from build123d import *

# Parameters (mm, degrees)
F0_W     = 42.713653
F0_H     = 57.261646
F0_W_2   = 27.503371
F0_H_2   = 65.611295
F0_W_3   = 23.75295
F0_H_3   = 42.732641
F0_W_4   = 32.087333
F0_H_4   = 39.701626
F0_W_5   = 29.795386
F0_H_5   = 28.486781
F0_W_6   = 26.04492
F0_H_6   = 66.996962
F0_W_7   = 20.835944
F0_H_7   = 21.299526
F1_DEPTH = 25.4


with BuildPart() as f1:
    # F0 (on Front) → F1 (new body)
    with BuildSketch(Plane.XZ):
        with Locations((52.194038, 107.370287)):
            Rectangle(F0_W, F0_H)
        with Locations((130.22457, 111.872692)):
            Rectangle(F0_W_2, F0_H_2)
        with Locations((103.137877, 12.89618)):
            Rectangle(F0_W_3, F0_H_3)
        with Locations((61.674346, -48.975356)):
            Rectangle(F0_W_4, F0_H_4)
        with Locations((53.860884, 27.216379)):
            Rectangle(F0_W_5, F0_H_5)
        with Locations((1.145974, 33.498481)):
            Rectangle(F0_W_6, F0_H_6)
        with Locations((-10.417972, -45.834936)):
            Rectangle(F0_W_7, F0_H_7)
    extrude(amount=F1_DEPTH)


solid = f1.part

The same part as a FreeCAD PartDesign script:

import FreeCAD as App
import Part
import Sketcher
Q = App.Units.Quantity

doc = App.newDocument("Part")
body = doc.addObject("PartDesign::Body", "Body")
body.AllowCompound = True

# Sketch on XZ plane
sketch1 = doc.addObject("Sketcher::SketchObject", "Sketch")
body.addObject(sketch1)
sketch1.AttachmentSupport = (doc.XZ_Plane, [""])
sketch1.MapMode = "FlatFace"
sketch1.addGeometry([
    Part.LineSegment(App.Vector(30.837211, 136.00111, 0), App.Vector(30.837211, 78.739464, 0)),  # 0
    Part.LineSegment(App.Vector(30.837211, 78.739464, 0), App.Vector(73.550865, 78.739464, 0)),  # 1
    Part.LineSegment(App.Vector(73.550865, 78.739464, 0), App.Vector(73.550865, 136.00111, 0)),  # 2
    Part.LineSegment(App.Vector(73.550865, 136.00111, 0), App.Vector(30.837211, 136.00111, 0)),  # 3
    Part.LineSegment(App.Vector(116.472885, 144.678339, 0), App.Vector(116.472885, 79.067044, 0)),  # 4
    Part.LineSegment(App.Vector(116.472885, 79.067044, 0), App.Vector(143.976256, 79.067044, 0)),  # 5
    Part.LineSegment(App.Vector(143.976256, 79.067044, 0), App.Vector(143.976256, 144.678339, 0)),  # 6
    Part.LineSegment(App.Vector(143.976256, 144.678339, 0), App.Vector(116.472885, 144.678339, 0)),  # 7
    Part.LineSegment(App.Vector(91.261402, 34.262501, 0), App.Vector(91.261402, -8.47014, 0)),  # 8
    Part.LineSegment(App.Vector(91.261402, -8.47014, 0), App.Vector(115.014352, -8.47014, 0)),  # 9
    Part.LineSegment(App.Vector(115.014352, -8.47014, 0), App.Vector(115.014352, 34.262501, 0)),  # 10
    Part.LineSegment(App.Vector(115.014352, 34.262501, 0), App.Vector(91.261402, 34.262501, 0)),  # 11
    Part.LineSegment(App.Vector(45.630679, -29.124543, 0), App.Vector(45.630679, -68.826169, 0)),  # 12
    Part.LineSegment(App.Vector(45.630679, -68.826169, 0), App.Vector(77.718013, -68.826169, 0)),  # 13
    Part.LineSegment(App.Vector(77.718013, -68.826169, 0), App.Vector(77.718013, -29.124543, 0)),  # 14
    Part.LineSegment(App.Vector(77.718013, -29.124543, 0), App.Vector(45.630679, -29.124543, 0)),  # 15
    Part.LineSegment(App.Vector(38.963191, 41.45977, 0), App.Vector(38.963191, 12.972988, 0)),  # 16
    Part.LineSegment(App.Vector(38.963191, 12.972988, 0), App.Vector(68.758577, 12.972988, 0)),  # 17
    Part.LineSegment(App.Vector(68.758577, 12.972988, 0), App.Vector(68.758577, 41.45977, 0)),  # 18
    Part.LineSegment(App.Vector(68.758577, 41.45977, 0), App.Vector(38.963191, 41.45977, 0)),  # 19
    Part.LineSegment(App.Vector(-11.876486, 66.996962, 0), App.Vector(-11.876486, 0, 0)),  # 20
    Part.LineSegment(App.Vector(-11.876486, 0, 0), App.Vector(14.168434, 0, 0)),  # 21
    Part.LineSegment(App.Vector(14.168434, 0, 0), App.Vector(14.168434, 66.996962, 0)),  # 22
    Part.LineSegment(App.Vector(14.168434, 66.996962, 0), App.Vector(-11.876486, 66.996962, 0)),  # 23
    Part.LineSegment(App.Vector(-20.835944, -35.185173, 0), App.Vector(-20.835944, -56.484699, 0)),  # 24
    Part.LineSegment(App.Vector(-20.835944, -56.484699, 0), App.Vector(0, -56.484699, 0)),  # 25
    Part.LineSegment(App.Vector(0, -56.484699, 0), App.Vector(0, -35.185173, 0)),  # 26
    Part.LineSegment(App.Vector(0, -35.185173, 0), App.Vector(-20.835944, -35.185173, 0)),  # 27
], False)
sketch1.addConstraint([
    Sketcher.Constraint("Coincident", 0, 2, 1, 1),
    Sketcher.Constraint("Coincident", 1, 2, 2, 1),
    Sketcher.Constraint("Coincident", 2, 2, 3, 1),
    Sketcher.Constraint("Coincident", 3, 2, 0, 1),
    Sketcher.Constraint("Coincident", 4, 2, 5, 1),
    Sketcher.Constraint("Coincident", 5, 2, 6, 1),
    Sketcher.Constraint("Coincident", 6, 2, 7, 1),
    Sketcher.Constraint("Coincident", 7, 2, 4, 1),
    Sketcher.Constraint("Coincident", 8, 2, 9, 1),
    Sketcher.Constraint("Coincident", 9, 2, 10, 1),
    Sketcher.Constraint("Coincident", 10, 2, 11, 1),
    Sketcher.Constraint("Coincident", 11, 2, 8, 1),
    Sketcher.Constraint("Coincident", 12, 2, 13, 1),
    Sketcher.Constraint("Coincident", 13, 2, 14, 1),
    Sketcher.Constraint("Coincident", 14, 2, 15, 1),
    Sketcher.Constraint("Coincident", 15, 2, 12, 1),
    Sketcher.Constraint("Coincident", 16, 2, 17, 1),
    Sketcher.Constraint("Coincident", 17, 2, 18, 1),
    Sketcher.Constraint("Coincident", 18, 2, 19, 1),
    Sketcher.Constraint("Coincident", 19, 2, 16, 1),
    Sketcher.Constraint("Coincident", 20, 2, 21, 1),
    Sketcher.Constraint("Coincident", 21, 2, 22, 1),
    Sketcher.Constraint("Coincident", 22, 2, 23, 1),
    Sketcher.Constraint("Coincident", 23, 2, 20, 1),
    Sketcher.Constraint("Coincident", 24, 2, 25, 1),
    Sketcher.Constraint("Coincident", 25, 2, 26, 1),
    Sketcher.Constraint("Coincident", 26, 2, 27, 1),
    Sketcher.Constraint("Coincident", 27, 2, 24, 1),
    Sketcher.Constraint("Vertical", 0),
    Sketcher.Constraint("Horizontal", 1),
    Sketcher.Constraint("Vertical", 2),
    Sketcher.Constraint("Horizontal", 3),
    Sketcher.Constraint("Vertical", 4),
    Sketcher.Constraint("Horizontal", 5),
    Sketcher.Constraint("Vertical", 6),
    Sketcher.Constraint("Horizontal", 7),
    Sketcher.Constraint("Vertical", 8),
    Sketcher.Constraint("Horizontal", 9),
    Sketcher.Constraint("Vertical", 10),
    Sketcher.Constraint("Horizontal", 11),
    Sketcher.Constraint("Vertical", 12),
    Sketcher.Constraint("Horizontal", 13),
    Sketcher.Constraint("Vertical", 14),
    Sketcher.Constraint("Horizontal", 15),
    Sketcher.Constraint("Vertical", 16),
    Sketcher.Constraint("Horizontal", 17),
    Sketcher.Constraint("Vertical", 18),
    Sketcher.Constraint("Horizontal", 19),
    Sketcher.Constraint("Vertical", 20),
    Sketcher.Constraint("Horizontal", 21),
    Sketcher.Constraint("Vertical", 22),
    Sketcher.Constraint("Horizontal", 23),
    Sketcher.Constraint("Vertical", 24),
    Sketcher.Constraint("Horizontal", 25),
    Sketcher.Constraint("Vertical", 26),
    Sketcher.Constraint("Horizontal", 27),
    Sketcher.Constraint("PointOnObject", 20, 2, -1),
    Sketcher.Constraint("PointOnObject", 25, 2, -2),
    Sketcher.Constraint("DistanceX", 5, 1, 5, 2, Q("27.503371 mm")),
    Sketcher.Constraint("DistanceX", 9, 1, 9, 2, Q("23.75295 mm")),
    Sketcher.Constraint("DistanceX", 21, 1, 21, 2, Q("26.04492 mm")),
    Sketcher.Constraint("DistanceY", 8, 2, 8, 1, Q("42.732641 mm")),
    Sketcher.Constraint("DistanceY", 16, 2, 16, 1, Q("28.486781 mm")),
    Sketcher.Constraint("DistanceY", 20, 2, 20, 1, Q("66.996962 mm")),
    Sketcher.Constraint("DistanceY", -1, 1, 10, 2, Q("34.262501 mm")),
    Sketcher.Constraint("DistanceY", 24, 2, -1, 1, Q("56.484699 mm")),
    Sketcher.Constraint("DistanceX", 1, 1, 1, 2, Q("42.713653 mm")),
    Sketcher.Constraint("DistanceX", 13, 1, 13, 2, Q("32.087333 mm")),
    Sketcher.Constraint("DistanceX", 17, 1, 17, 2, Q("29.795386 mm")),
    Sketcher.Constraint("DistanceX", 25, 1, 25, 2, Q("20.835944 mm")),
    Sketcher.Constraint("DistanceY", 0, 2, 0, 1, Q("57.261646 mm")),
    Sketcher.Constraint("DistanceY", 4, 2, 4, 1, Q("65.611295 mm")),
    Sketcher.Constraint("DistanceY", 12, 2, 12, 1, Q("39.701626 mm")),
    Sketcher.Constraint("DistanceY", 24, 2, 24, 1, Q("21.299526 mm")),
    Sketcher.Constraint("DistanceX", -1, 1, 0, 2, Q("30.837211 mm")),
    Sketcher.Constraint("DistanceY", -1, 1, 2, 2, Q("136.00111 mm")),
    Sketcher.Constraint("DistanceY", -1, 1, 6, 2, Q("144.678339 mm")),
    Sketcher.Constraint("DistanceX", -1, 1, 12, 2, Q("45.630679 mm")),
    Sketcher.Constraint("DistanceY", 12, 2, -1, 1, Q("68.826169 mm")),
    Sketcher.Constraint("DistanceX", -1, 1, 16, 2, Q("38.963191 mm")),
    Sketcher.Constraint("DistanceY", -1, 1, 16, 2, Q("12.972988 mm")),
    Sketcher.Constraint("DistanceX", 1, 2, 4, 2, Q("42.92202 mm")),
    Sketcher.Constraint("DistanceX", 0, 2, 8, 2, Q("60.424191 mm")),
    Sketcher.Constraint("DistanceX", 22, 2, 1, 2, Q("59.382431 mm")),
])
pad1 = doc.addObject("PartDesign::Pad", "Pad")
body.addObject(pad1)
pad1.Profile = sketch1
pad1.Length = Q("1 in")

doc.recompute()
